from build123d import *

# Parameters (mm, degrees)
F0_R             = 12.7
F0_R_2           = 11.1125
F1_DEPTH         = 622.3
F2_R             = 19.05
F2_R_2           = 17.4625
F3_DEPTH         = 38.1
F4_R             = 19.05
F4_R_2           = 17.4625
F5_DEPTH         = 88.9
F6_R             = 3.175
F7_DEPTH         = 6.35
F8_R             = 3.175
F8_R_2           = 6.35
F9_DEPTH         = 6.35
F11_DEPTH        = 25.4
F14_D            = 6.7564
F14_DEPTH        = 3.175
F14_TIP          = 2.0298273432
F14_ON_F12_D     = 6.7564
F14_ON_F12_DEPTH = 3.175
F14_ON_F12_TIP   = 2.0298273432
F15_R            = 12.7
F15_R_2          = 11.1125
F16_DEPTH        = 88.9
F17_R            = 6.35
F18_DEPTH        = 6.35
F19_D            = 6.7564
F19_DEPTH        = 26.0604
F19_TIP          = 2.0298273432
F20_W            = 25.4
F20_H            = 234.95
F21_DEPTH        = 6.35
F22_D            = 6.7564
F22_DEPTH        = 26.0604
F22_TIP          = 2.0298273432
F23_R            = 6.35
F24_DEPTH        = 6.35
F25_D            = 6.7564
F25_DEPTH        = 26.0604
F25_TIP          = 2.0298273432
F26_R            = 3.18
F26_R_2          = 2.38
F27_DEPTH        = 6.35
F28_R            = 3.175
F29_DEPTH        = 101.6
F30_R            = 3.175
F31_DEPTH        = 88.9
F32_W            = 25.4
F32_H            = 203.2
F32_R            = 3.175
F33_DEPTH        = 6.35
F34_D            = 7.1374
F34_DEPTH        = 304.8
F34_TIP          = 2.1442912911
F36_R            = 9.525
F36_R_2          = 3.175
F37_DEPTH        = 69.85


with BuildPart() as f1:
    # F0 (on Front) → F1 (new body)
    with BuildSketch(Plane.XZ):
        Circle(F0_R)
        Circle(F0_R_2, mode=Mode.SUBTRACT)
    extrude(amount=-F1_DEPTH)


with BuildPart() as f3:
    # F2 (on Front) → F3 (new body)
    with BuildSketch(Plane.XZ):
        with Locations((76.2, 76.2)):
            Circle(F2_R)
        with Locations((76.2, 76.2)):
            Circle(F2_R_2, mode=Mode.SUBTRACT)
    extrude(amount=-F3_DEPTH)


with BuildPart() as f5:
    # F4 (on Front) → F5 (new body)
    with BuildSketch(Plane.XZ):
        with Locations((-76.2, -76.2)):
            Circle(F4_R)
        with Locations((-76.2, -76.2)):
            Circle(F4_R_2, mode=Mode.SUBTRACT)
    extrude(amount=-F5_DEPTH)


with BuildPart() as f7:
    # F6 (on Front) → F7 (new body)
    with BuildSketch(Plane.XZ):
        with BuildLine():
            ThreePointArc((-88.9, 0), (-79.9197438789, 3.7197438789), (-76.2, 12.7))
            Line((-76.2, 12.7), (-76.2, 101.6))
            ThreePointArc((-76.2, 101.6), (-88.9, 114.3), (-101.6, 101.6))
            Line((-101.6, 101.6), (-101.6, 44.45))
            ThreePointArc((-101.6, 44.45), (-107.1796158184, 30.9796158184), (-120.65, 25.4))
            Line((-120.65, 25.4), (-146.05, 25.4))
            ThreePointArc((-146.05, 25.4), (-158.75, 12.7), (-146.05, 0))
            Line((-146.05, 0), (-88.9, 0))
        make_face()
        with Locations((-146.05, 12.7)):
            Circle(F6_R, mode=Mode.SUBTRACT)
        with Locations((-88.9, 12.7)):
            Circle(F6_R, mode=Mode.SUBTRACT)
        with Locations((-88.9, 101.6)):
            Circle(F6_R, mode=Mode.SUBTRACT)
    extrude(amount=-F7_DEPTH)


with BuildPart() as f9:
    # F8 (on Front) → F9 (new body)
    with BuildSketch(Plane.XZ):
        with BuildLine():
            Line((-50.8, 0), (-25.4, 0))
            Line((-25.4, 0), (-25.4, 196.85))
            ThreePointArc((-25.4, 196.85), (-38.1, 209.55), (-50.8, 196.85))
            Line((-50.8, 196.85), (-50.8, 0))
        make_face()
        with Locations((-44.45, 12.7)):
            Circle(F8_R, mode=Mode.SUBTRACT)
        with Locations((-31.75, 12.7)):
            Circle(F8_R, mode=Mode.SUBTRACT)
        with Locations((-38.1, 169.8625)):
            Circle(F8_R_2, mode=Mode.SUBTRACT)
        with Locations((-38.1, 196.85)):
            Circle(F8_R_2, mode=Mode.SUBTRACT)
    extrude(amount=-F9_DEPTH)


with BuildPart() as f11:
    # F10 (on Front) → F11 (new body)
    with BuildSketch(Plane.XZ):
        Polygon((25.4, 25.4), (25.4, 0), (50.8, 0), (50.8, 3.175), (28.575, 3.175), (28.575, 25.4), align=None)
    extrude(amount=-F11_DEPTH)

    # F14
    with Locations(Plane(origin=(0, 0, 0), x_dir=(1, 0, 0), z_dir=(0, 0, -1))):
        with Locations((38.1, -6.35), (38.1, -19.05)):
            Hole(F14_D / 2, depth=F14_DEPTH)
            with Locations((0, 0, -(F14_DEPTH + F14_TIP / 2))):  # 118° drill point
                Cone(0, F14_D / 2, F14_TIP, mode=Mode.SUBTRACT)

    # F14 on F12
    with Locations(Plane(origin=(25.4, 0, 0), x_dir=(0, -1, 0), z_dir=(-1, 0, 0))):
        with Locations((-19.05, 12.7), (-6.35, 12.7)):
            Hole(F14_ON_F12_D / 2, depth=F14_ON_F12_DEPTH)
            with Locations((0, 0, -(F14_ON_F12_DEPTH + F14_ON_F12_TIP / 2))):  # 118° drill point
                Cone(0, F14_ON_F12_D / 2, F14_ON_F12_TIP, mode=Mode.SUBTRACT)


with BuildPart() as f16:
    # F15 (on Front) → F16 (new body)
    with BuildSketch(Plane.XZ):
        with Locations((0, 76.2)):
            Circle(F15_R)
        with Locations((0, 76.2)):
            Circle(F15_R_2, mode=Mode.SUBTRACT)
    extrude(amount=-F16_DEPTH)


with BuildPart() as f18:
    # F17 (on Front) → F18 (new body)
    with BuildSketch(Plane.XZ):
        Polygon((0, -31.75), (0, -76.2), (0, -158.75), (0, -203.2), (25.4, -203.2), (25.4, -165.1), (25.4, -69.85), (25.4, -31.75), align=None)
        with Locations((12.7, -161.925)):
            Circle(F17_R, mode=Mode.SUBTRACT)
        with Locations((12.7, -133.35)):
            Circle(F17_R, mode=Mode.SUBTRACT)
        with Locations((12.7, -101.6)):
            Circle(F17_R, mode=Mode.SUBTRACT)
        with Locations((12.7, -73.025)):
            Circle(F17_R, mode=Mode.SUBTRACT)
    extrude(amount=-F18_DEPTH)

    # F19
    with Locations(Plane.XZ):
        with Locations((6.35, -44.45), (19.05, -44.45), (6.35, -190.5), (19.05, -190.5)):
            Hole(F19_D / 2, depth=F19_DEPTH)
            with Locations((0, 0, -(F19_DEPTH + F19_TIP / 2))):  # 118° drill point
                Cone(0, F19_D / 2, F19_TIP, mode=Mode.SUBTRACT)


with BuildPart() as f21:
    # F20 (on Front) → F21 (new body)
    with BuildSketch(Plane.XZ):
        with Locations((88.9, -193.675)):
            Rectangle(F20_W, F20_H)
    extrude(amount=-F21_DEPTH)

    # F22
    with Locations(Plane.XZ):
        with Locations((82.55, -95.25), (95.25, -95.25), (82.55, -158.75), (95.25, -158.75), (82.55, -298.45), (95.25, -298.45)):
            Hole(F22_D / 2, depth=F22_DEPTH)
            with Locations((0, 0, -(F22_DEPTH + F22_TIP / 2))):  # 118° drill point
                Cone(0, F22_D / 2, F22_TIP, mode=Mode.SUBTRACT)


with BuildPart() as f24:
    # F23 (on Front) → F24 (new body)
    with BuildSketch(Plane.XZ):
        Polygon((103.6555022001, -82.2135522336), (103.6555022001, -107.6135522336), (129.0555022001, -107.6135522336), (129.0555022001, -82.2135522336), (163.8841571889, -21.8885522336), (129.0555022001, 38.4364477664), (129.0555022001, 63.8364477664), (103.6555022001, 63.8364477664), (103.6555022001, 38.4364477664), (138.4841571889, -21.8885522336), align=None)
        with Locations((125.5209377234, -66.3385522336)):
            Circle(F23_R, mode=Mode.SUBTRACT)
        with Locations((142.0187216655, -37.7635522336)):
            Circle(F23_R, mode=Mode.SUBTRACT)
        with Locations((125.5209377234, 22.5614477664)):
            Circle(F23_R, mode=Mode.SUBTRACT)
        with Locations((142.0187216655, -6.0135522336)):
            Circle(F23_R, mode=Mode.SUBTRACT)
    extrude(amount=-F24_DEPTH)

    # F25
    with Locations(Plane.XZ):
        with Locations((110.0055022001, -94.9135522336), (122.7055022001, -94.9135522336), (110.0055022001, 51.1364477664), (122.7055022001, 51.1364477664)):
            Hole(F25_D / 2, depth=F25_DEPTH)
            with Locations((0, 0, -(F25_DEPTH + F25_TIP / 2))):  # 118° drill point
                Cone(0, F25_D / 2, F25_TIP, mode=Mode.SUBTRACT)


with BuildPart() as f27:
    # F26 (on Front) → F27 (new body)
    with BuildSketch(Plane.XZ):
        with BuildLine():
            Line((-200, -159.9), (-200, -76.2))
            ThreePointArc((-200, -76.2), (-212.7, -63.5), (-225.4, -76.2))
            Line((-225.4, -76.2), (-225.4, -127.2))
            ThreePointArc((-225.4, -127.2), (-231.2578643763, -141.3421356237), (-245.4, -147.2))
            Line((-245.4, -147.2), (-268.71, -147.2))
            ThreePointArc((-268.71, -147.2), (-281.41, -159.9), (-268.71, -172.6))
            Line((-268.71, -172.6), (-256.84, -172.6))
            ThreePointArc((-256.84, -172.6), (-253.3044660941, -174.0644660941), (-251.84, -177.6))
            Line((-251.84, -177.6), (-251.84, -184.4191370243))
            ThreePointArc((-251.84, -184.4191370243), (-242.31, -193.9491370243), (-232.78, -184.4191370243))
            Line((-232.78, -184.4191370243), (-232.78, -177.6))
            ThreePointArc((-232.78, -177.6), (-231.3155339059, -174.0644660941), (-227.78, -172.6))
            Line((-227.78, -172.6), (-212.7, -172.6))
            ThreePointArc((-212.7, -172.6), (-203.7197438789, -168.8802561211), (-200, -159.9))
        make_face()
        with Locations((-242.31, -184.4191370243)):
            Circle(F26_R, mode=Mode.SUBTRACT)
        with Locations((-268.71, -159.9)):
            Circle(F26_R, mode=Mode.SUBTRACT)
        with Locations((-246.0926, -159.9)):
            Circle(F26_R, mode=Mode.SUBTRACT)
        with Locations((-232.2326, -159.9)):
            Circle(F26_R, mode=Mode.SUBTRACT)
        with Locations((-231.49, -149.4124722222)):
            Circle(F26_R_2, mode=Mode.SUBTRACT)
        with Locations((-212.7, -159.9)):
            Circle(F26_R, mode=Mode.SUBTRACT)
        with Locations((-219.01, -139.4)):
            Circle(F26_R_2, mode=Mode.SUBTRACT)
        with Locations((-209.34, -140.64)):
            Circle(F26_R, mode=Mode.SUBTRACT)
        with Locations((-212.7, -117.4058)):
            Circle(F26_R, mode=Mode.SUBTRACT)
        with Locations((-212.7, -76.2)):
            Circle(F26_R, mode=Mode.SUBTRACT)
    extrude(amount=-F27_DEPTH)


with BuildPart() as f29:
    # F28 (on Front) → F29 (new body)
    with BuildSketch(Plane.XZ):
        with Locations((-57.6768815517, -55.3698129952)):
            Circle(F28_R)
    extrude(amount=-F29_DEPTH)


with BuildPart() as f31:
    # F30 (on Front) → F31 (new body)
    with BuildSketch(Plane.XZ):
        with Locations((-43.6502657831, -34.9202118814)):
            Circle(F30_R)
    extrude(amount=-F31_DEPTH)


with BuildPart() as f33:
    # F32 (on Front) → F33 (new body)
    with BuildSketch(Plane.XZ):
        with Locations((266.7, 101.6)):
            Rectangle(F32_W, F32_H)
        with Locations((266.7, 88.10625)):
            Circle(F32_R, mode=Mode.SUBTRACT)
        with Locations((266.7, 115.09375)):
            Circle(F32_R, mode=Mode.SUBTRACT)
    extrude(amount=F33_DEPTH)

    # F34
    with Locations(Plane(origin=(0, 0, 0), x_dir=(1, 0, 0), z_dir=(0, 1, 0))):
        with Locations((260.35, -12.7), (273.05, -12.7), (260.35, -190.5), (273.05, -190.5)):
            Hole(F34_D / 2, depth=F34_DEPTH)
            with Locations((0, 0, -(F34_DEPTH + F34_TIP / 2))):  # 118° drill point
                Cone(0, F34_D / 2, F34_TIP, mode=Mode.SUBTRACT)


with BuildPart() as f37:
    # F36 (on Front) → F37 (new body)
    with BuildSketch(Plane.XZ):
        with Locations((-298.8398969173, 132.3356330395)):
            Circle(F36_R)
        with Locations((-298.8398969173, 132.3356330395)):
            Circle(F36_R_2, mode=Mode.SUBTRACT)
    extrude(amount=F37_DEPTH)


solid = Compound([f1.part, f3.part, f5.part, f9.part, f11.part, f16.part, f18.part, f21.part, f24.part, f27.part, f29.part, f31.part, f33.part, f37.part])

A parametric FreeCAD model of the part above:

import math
import FreeCAD as App
import Part
import Sketcher
Q = App.Units.Quantity


def add_polygon(sketch, points):
    """Adds a closed chain of lines whose ends are joined by coincident constraints."""
    first, n = sketch.GeometryCount, len(points)
    for a, b in zip(points, points[1:] + points[:1]):
        sketch.addGeometry(Part.LineSegment(App.Vector(*a, 0), App.Vector(*b, 0)), False)
    for i in range(n):
        sketch.addConstraint(Sketcher.Constraint("Coincident", first + i, 2, first + (i + 1) % n, 1))

doc = App.newDocument("Part")
body = doc.addObject("PartDesign::Body", "Body")

sketch1 = body.newObject("Sketcher::SketchObject", "Sketch")
sketch1.AttachmentSupport = (doc.getObject("XZ_Plane"), [""])
sketch1.MapMode = "FlatFace"
sketch1.addGeometry([
    Part.Circle(App.Vector(0, 0, 0), App.Vector(0, 0, 1), 12.7),
    Part.Circle(App.Vector(0, 0, 0), App.Vector(0, 0, 1), 11.1125),
], False)
sketch1.addConstraint([
    Sketcher.Constraint("Coincident", 0, 3, -1, 1),
    Sketcher.Constraint("Coincident", 1, 3, -1, 1),
    Sketcher.Constraint("Diameter", 0, Q("1 in")),
    Sketcher.Constraint("Diameter", 1, Q("0.875 in")),
])
pad1 = body.newObject("PartDesign::Pad", "Pad")
pad1.Profile = sketch1
pad1.Length = Q("24.5 in")
pad1.Reversed = True
body2 = doc.addObject("PartDesign::Body", "Body001")

sketch2 = body2.newObject("Sketcher::SketchObject", "Sketch001")
sketch2.AttachmentSupport = (doc.getObject("XZ_Plane001"), [""])
sketch2.MapMode = "FlatFace"
sketch2.addGeometry([
    Part.Circle(App.Vector(76.2, 76.2, 0), App.Vector(0, 0, 1), 19.05),
    Part.Circle(App.Vector(76.2, 76.2, 0), App.Vector(0, 0, 1), 17.4625),
], False)
sketch2.addConstraint([
    Sketcher.Constraint("Coincident", 1, 3, 0, 3),
    Sketcher.Constraint("Diameter", 0, Q("1.5 in")),
    Sketcher.Constraint("Diameter", 1, Q("1.375 in")),
    Sketcher.Constraint("DistanceX", -1, 1, 0, 3, Q("3 in")),
    Sketcher.Constraint("DistanceY", -1, 1, 0, 3, Q("3 in")),
])
pad2 = body2.newObject("PartDesign::Pad", "Pad001")
pad2.Profile = sketch2
pad2.Length = Q("1.5 in")
pad2.Reversed = True
body3 = doc.addObject("PartDesign::Body", "Body002")

sketch3 = body3.newObject("Sketcher::SketchObject", "Sketch002")
sketch3.AttachmentSupport = (doc.getObject("XZ_Plane002"), [""])
sketch3.MapMode = "FlatFace"
sketch3.addGeometry([
    Part.Circle(App.Vector(-76.2, -76.2, 0), App.Vector(0, 0, 1), 19.05),
    Part.Circle(App.Vector(-76.2, -76.2, 0), App.Vector(0, 0, 1), 17.4625),
], False)
sketch3.addConstraint([
    Sketcher.Constraint("Coincident", 1, 3, 0, 3),
    Sketcher.Constraint("Diameter", 0, Q("1.5 in")),
    Sketcher.Constraint("Diameter", 1, Q("1.375 in")),
    Sketcher.Constraint("DistanceX", 0, 3, -1, 1, Q("3 in")),
    Sketcher.Constraint("DistanceY", 0, 3, -1, 1, Q("3 in")),
])
pad3 = body3.newObject("PartDesign::Pad", "Pad002")
pad3.Profile = sketch3
pad3.Length = Q("3.5 in")
pad3.Reversed = True
body4 = doc.addObject("PartDesign::Body", "Body003")

sketch4 = body4.newObject("Sketcher::SketchObject", "Sketch003")
sketch4.AttachmentSupport = (doc.getObject("XZ_Plane003"), [""])
sketch4.MapMode = "FlatFace"
sketch4.addGeometry([
    Part.ArcOfCircle(Part.Circle(App.Vector(-88.9, 12.7, 0), App.Vector(0, 0, 1), 12.7), math.radians(-90), math.radians(0)),
    Part.LineSegment(App.Vector(-76.2, 12.7, 0), App.Vector(-76.2, 101.6, 0)),
    Part.ArcOfCircle(Part.Circle(App.Vector(-88.9, 101.6, 0), App.Vector(0, 0, 1), 12.7), math.radians(0), math.radians(180)),
    Part.LineSegment(App.Vector(-101.6, 101.6, 0), App.Vector(-101.6, 44.45, 0)),
    Part.ArcOfCircle(Part.Circle(App.Vector(-120.65, 44.45, 0), App.Vector(0, 0, 1), 19.05), math.radians(-90), math.radians(0)),
    Part.LineSegment(App.Vector(-120.65, 25.4, 0), App.Vector(-146.05, 25.4, 0)),
    Part.ArcOfCircle(Part.Circle(App.Vector(-146.05, 12.7, 0), App.Vector(0, 0, 1), 12.7), math.radians(90), math.radians(270)),
    Part.LineSegment(App.Vector(-146.05, 0, 0), App.Vector(-88.9, 0, 0)),
    Part.Circle(App.Vector(-146.05, 12.7, 0), App.Vector(0, 0, 1), 3.175),
    Part.Circle(App.Vector(-88.9, 12.7, 0), App.Vector(0, 0, 1), 3.175),
    Part.Circle(App.Vector(-88.9, 101.6, 0), App.Vector(0, 0, 1), 3.175),
], False)
sketch4.addConstraint([
    Sketcher.Constraint("Tangent", 0, 2, 1, 1),
    Sketcher.Constraint("Tangent", 1, 2, 2, 1),
    Sketcher.Constraint("Tangent", 2, 2, 3, 1),
    Sketcher.Constraint("Tangent", 3, 2, 4, 2),
    Sketcher.Constraint("Tangent", 4, 1, 5, 1),
    Sketcher.Constraint("Tangent", 5, 2, 6, 1),
    Sketcher.Constraint("Tangent", 6, 2, 7, 1),
    Sketcher.Constraint("Tangent", 7, 2, 0, 1),
    Sketcher.Constraint("Vertical", 1),
    Sketcher.Constraint("Vertical", 3),
    Sketcher.Constraint("Horizontal", 5),
    Sketcher.Constraint("Horizontal", 7),
    Sketcher.Constraint("Coincident", 8, 3, 6, 3),
    Sketcher.Constraint("Coincident", 9, 3, 0, 3),
    Sketcher.Constraint("Coincident", 10, 3, 2, 3),
    Sketcher.Constraint("Equal", 0, 2),
    Sketcher.Constraint("Equal", 2, 6),
    Sketcher.Constraint("Equal", 8, 9),
    Sketcher.Constraint("Equal", 9, 10),
    Sketcher.Constraint("PointOnObject", 6, 2, -1),
    Sketcher.Constraint("Equal", 7, 3),
    Sketcher.Constraint("Radius", 0, Q("0.5 in")),
    Sketcher.Constraint("Diameter", 8, Q("0.25 in")),
    Sketcher.Constraint("DistanceX", 5, 2, 5, 1, Q("1 in")),
    Sketcher.Constraint("Radius", 4, Q("0.75 in")),
    Sketcher.Constraint("DistanceX", 0, 2, -1, 1, Q("3 in")),
])
pad4 = body4.newObject("PartDesign::Pad", "Pad003")
pad4.Profile = sketch4
pad4.Length = Q("0.25 in")
pad4.Reversed = True
body5 = doc.addObject("PartDesign::Body", "Body004")

sketch5 = body5.newObject("Sketcher::SketchObject", "Sketch004")
sketch5.AttachmentSupport = (doc.getObject("XZ_Plane004"), [""])
sketch5.MapMode = "FlatFace"
sketch5.addGeometry([
    Part.LineSegment(App.Vector(-50.8, 0, 0), App.Vector(-25.4, 0, 0)),
    Part.LineSegment(App.Vector(-25.4, 0, 0), App.Vector(-25.4, 196.85, 0)),
    Part.ArcOfCircle(Part.Circle(App.Vector(-38.1, 196.85, 0), App.Vector(0, 0, 1), 12.7), math.radians(0), math.radians(180)),
    Part.LineSegment(App.Vector(-50.8, 196.85, 0), App.Vector(-50.8, 0, 0)),
    Part.Circle(App.Vector(-44.45, 12.7, 0), App.Vector(0, 0, 1), 3.175),
    Part.Circle(App.Vector(-31.75, 12.7, 0), App.Vector(0, 0, 1), 3.175),
    Part.Circle(App.Vector(-38.1, 169.8625, 0), App.Vector(0, 0, 1), 6.35),
    Part.Circle(App.Vector(-38.1, 196.85, 0), App.Vector(0, 0, 1), 6.35),
], False)
sketch5.addConstraint([
    Sketcher.Constraint("Coincident", 0, 2, 1, 1),
    Sketcher.Constraint("Tangent", 1, 2, 2, 1),
    Sketcher.Constraint("Tangent", 2, 2, 3, 1),
    Sketcher.Constraint("Coincident", 3, 2, 0, 1),
    Sketcher.Constraint("Horizontal", 0),
    Sketcher.Constraint("Vertical", 1),
    Sketcher.Constraint("Vertical", 3),
    Sketcher.Constraint("Coincident", 7, 3, 2, 3),
    Sketcher.Constraint("Equal", 4, 5),
    Sketcher.Constraint("Equal", 6, 7),
    Sketcher.Constraint("PointOnObject", 0, 2, -1),
    Sketcher.Constraint("Horizontal", 4, 3, 5, 3),
    Sketcher.Constraint("Vertical", 2, 3, 6, 3),
    Sketcher.Constraint("Diameter", 6, Q("0.5 in")),
    Sketcher.Constraint("Radius", 2, Q("0.5 in")),
    Sketcher.Constraint("Diameter", 4, Q("0.25 in")),
    Sketcher.Constraint("DistanceX", 0, 2, -1, 1, Q("1 in")),
    Sketcher.Constraint("DistanceY", 1, 1, 1, 2, Q("7.75 in")),
    Sketcher.Constraint("DistanceY", -1, 1, 4, 3, Q("0.5 in")),
    Sketcher.Constraint("DistanceX", 4, 3, 5, 3, Q("0.5 in")),
    Sketcher.Constraint("DistanceX", 4, 3, -1, 1, Q("1.75 in")),
    Sketcher.Constraint("DistanceY", -1, 1, 6, 3, Q("6.6875 in")),
])
pad5 = body5.newObject("PartDesign::Pad", "Pad004")
pad5.Profile = sketch5
pad5.Length = Q("0.25 in")
pad5.Reversed = True
body6 = doc.addObject("PartDesign::Body", "Body005")

sketch6 = body6.newObject("Sketcher::SketchObject", "Sketch005")
sketch6.AttachmentSupport = (doc.getObject("XZ_Plane005"), [""])
sketch6.MapMode = "FlatFace"
add_polygon(sketch6, [(25.4, 25.4), (25.4, 0), (50.8, 0), (50.8, 3.175), (28.575, 3.175), (28.575, 25.4)])
sketch6.addConstraint([
    Sketcher.Constraint("Vertical", 0),
    Sketcher.Constraint("Horizontal", 1),
    Sketcher.Constraint("Vertical", 2),
    Sketcher.Constraint("Horizontal", 3),
    Sketcher.Constraint("Vertical", 4),
    Sketcher.Constraint("Horizontal", 5),
    Sketcher.Constraint("PointOnObject", 0, 2, -1),
    Sketcher.Constraint("Equal", 1, 0),
    Sketcher.Constraint("Equal", 5, 2),
    Sketcher.Constraint("DistanceX", 1, 1, 1, 2, Q("1 in")),
    Sketcher.Constraint("DistanceX", -1, 1, 0, 2, Q("1 in")),
    Sketcher.Constraint("DistanceX", 3, 2, 3, 1, Q("0.875 in")),
])
pad6 = body6.newObject("PartDesign::Pad", "Pad005")
pad6.Profile = sketch6
pad6.Length = Q("1 in")
pad6.Reversed = True

sketch7 = body6.newObject("Sketcher::SketchObject", "Sketch006")
sketch7.AttachmentSupport = (doc.getObject("XY_Plane005"), [""])
sketch7.MapMode = "FlatFace"
sketch7.addGeometry([
    Part.Circle(App.Vector(38.1, 6.35, 0), App.Vector(0, 0, 1), 3.3782),
    Part.Circle(App.Vector(38.1, 19.05, 0), App.Vector(0, 0, 1), 3.3782),
], False)
sketch7.addConstraint([
    Sketcher.Constraint("Equal", 0, 1),
    Sketcher.Constraint("Vertical", 0, 3, 1, 3),
    Sketcher.Constraint("Diameter", 0, Q("0.266 in")),
    Sketcher.Constraint("DistanceX", -1, 1, 0, 3, Q("1.5 in")),
    Sketcher.Constraint("DistanceY", 0, 3, 1, 3, Q("0.5 in")),
    Sketcher.Constraint("DistanceY", -1, 1, 0, 3, Q("0.25 in")),
])
doc.recompute()
hole = body6.newObject("PartDesign::Hole", "Hole")
hole.Profile = sketch7
hole.ThreadType = "None"
hole.Diameter = Q("0.266 in")
hole.DepthType = "Dimension"
hole.Depth = Q("0.125 in")
hole.DrillPoint = "Angled"
hole.DrillPointAngle = 118
hole.Reversed = True

sketch8 = body6.newObject("Sketcher::SketchObject", "Sketch007")
sketch8.AttachmentSupport = (doc.getObject("YZ_Plane005"), [""])
sketch8.MapMode = "FlatFace"
sketch8.AttachmentOffset = App.Placement(App.Vector(0, 0, 1 * 25.4), App.Rotation())
sketch8.addGeometry([
    Part.Circle(App.Vector(19.05, 12.7, 0), App.Vector(0, 0, 1), 3.3782),
    Part.Circle(App.Vector(6.35, 12.7, 0), App.Vector(0, 0, 1), 3.3782),
], False)
sketch8.addConstraint([
    Sketcher.Constraint("Equal", 0, 1),
    Sketcher.Constraint("Horizontal", 0, 3, 1, 3),
    Sketcher.Constraint("Diameter", 0, Q("0.266 in")),
    Sketcher.Constraint("DistanceY", -1, 1, 0, 3, Q("0.5 in")),
    Sketcher.Constraint("DistanceX", 1, 3, 0, 3, Q("0.5 in")),
    Sketcher.Constraint("DistanceX", -1, 1, 0, 3, Q("0.75 in")),
])
doc.recompute()
hole2 = body6.newObject("PartDesign::Hole", "Hole001")
hole2.Profile = sketch8
hole2.ThreadType = "None"
hole2.Diameter = Q("0.266 in")
hole2.DepthType = "Dimension"
hole2.Depth = Q("0.125 in")
hole2.DrillPoint = "Angled"
hole2.DrillPointAngle = 118
hole2.Reversed = True
body7 = doc.addObject("PartDesign::Body", "Body006")

sketch9 = body7.newObject("Sketcher::SketchObject", "Sketch008")
sketch9.AttachmentSupport = (doc.getObject("XZ_Plane006"), [""])
sketch9.MapMode = "FlatFace"
sketch9.addGeometry([
    Part.Circle(App.Vector(0, 76.2, 0), App.Vector(0, 0, 1), 12.7),
    Part.Circle(App.Vector(0, 76.2, 0), App.Vector(0, 0, 1), 11.1125),
], False)
sketch9.addConstraint([
    Sketcher.Constraint("Coincident", 1, 3, 0, 3),
    Sketcher.Constraint("PointOnObject", 0, 3, -2),
    Sketcher.Constraint("Diameter", 0, Q("1 in")),
    Sketcher.Constraint("Diameter", 1, Q("0.875 in")),
    Sketcher.Constraint("DistanceY", -1, 1, 0, 3, Q("3 in")),
])
pad7 = body7.newObject("PartDesign::Pad", "Pad006")
pad7.Profile = sketch9
pad7.Length = Q("3.5 in")
pad7.Reversed = True
body8 = doc.addObject("PartDesign::Body", "Body007")

sketch10 = body8.newObject("Sketcher::SketchObject", "Sketch009")
sketch10.AttachmentSupport = (doc.getObject("XZ_Plane007"), [""])
sketch10.MapMode = "FlatFace"
add_polygon(sketch10, [(0, -31.75), (0, -203.2), (25.4, -203.2), (25.4, -31.75)])
sketch10.addGeometry(Part.Circle(App.Vector(12.7, -161.925, 0), App.Vector(0, 0, 1), 6.35), False)
sketch10.addGeometry(Part.Circle(App.Vector(12.7, -133.35, 0), App.Vector(0, 0, 1), 6.35), False)
sketch10.addGeometry(Part.Circle(App.Vector(12.7, -101.6, 0), App.Vector(0, 0, 1), 6.35), False)
sketch10.addGeometry(Part.Circle(App.Vector(12.7, -73.025, 0), App.Vector(0, 0, 1), 6.35), False)
sketch10.addConstraint([
    Sketcher.Constraint("Vertical", 0),
    Sketcher.Constraint("Horizontal", 1),
    Sketcher.Constraint("Vertical", 2),
    Sketcher.Constraint("Horizontal", 3),
    Sketcher.Constraint("Equal", 4, 5),
    Sketcher.Constraint("Equal", 5, 6),
    Sketcher.Constraint("Equal", 6, 7),
    Sketcher.Constraint("PointOnObject", 0, 2, -2),
    Sketcher.Constraint("Vertical", 4, 3, 5, 3),
    Sketcher.Constraint("Vertical", 5, 3, 6, 3),
    Sketcher.Constraint("Vertical", 6, 3, 7, 3),
    Sketcher.Constraint("Diameter", 4, Q("0.5 in")),
    Sketcher.Constraint("DistanceX", 1, 1, 1, 2, Q("1 in")),
    Sketcher.Constraint("DistanceY", 6, 3, -1, 1, Q("4 in")),
    Sketcher.Constraint("DistanceY", 0, 2, -1, 1, Q("8 in")),
    Sketcher.Constraint("DistanceY", 5, 3, 2, 2, Q("4 in")),
    Sketcher.Constraint("DistanceY", 0, 2, 0, 1, Q("6.75 in")),
    Sketcher.Constraint("DistanceX", -1, 1, 4, 3, Q("0.5 in")),
    Sketcher.Constraint("DistanceY", 4, 3, 7, 3, Q("3.5 in")),
    Sketcher.Constraint("DistanceY", 4, 3, -1, 1, Q("6.375 in")),
])
pad8 = body8.newObject("PartDesign::Pad", "Pad007")
pad8.Profile = sketch10
pad8.Length = Q("0.25 in")
pad8.Reversed = True

sketch11 = body8.newObject("Sketcher::SketchObject", "Sketch010")
sketch11.AttachmentSupport = (doc.getObject("XZ_Plane007"), [""])
sketch11.MapMode = "FlatFace"
sketch11.addGeometry([
    Part.Circle(App.Vector(6.35, -44.45, 0), App.Vector(0, 0, 1), 3.3782),
    Part.Circle(App.Vector(19.05, -44.45, 0), App.Vector(0, 0, 1), 3.3782),
    Part.Circle(App.Vector(6.35, -190.5, 0), App.Vector(0, 0, 1), 3.3782),
    Part.Circle(App.Vector(19.05, -190.5, 0), App.Vector(0, 0, 1), 3.3782),
], False)
sketch11.addConstraint([
    Sketcher.Constraint("Equal", 0, 1),
    Sketcher.Constraint("Equal", 1, 2),
    Sketcher.Constraint("Equal", 2, 3),
    Sketcher.Constraint("Horizontal", 0, 3, 1, 3),
    Sketcher.Constraint("Horizontal", 2, 3, 3, 3),
    Sketcher.Constraint("Vertical", 0, 3, 2, 3),
    Sketcher.Constraint("Vertical", 1, 3, 3, 3),
    Sketcher.Constraint("Diameter", 0, Q("0.266 in")),
    Sketcher.Constraint("DistanceY", 2, 3, -1, 1, Q("7.5 in")),
    Sketcher.Constraint("DistanceX", 0, 3, 1, 3, Q("0.5 in")),
    Sketcher.Constraint("DistanceX", -1, 1, 0, 3, Q("0.25 in")),
    Sketcher.Constraint("DistanceY", 0, 3, -1, 1, Q("1.75 in")),
])
doc.recompute()
hole3 = body8.newObject("PartDesign::Hole", "Hole002")
hole3.Profile = sketch11
hole3.ThreadType = "None"
hole3.Diameter = Q("0.266 in")
hole3.DepthType = "Dimension"
hole3.Depth = Q("1.026 in")
hole3.DrillPoint = "Angled"
hole3.DrillPointAngle = 118
body9 = doc.addObject("PartDesign::Body", "Body008")

sketch12 = body9.newObject("Sketcher::SketchObject", "Sketch011")
sketch12.AttachmentSupport = (doc.getObject("XZ_Plane008"), [""])
sketch12.MapMode = "FlatFace"
add_polygon(sketch12, [(76.2, -76.2), (76.2, -311.15), (101.6, -311.15), (101.6, -76.2)])
sketch12.addConstraint([
    Sketcher.Constraint("Vertical", 0),
    Sketcher.Constraint("Horizontal", 1),
    Sketcher.Constraint("Vertical", 2),
    Sketcher.Constraint("Horizontal", 3),
    Sketcher.Constraint("DistanceX", 1, 1, 1, 2, Q("1 in")),
    Sketcher.Constraint("DistanceX", -1, 1, 0, 2, Q("3 in")),
    Sketcher.Constraint("DistanceY", 2, 2, -1, 1, Q("3 in")),
    Sketcher.Constraint("DistanceY", 0, 2, 0, 1, Q("9.25 in")),
])
pad9 = body9.newObject("PartDesign::Pad", "Pad008")
pad9.Profile = sketch12
pad9.Length = Q("0.25 in")
pad9.Reversed = True

sketch13 = body9.newObject("Sketcher::SketchObject", "Sketch012")
sketch13.AttachmentSupport = (doc.getObject("XZ_Plane008"), [""])
sketch13.MapMode = "FlatFace"
sketch13.addGeometry([
    Part.Circle(App.Vector(82.55, -95.25, 0), App.Vector(0, 0, 1), 3.3782),
    Part.Circle(App.Vector(95.25, -95.25, 0), App.Vector(0, 0, 1), 3.3782),
    Part.Circle(App.Vector(82.55, -158.75, 0), App.Vector(0, 0, 1), 3.3782),
    Part.Circle(App.Vector(95.25, -158.75, 0), App.Vector(0, 0, 1), 3.3782),
    Part.Circle(App.Vector(82.55, -298.45, 0), App.Vector(0, 0, 1), 3.3782),
    Part.Circle(App.Vector(95.25, -298.45, 0), App.Vector(0, 0, 1), 3.3782),
], False)
sketch13.addConstraint([
    Sketcher.Constraint("Equal", 0, 1),
    Sketcher.Constraint("Equal", 1, 2),
    Sketcher.Constraint("Equal", 2, 3),
    Sketcher.Constraint("Equal", 3, 4),
    Sketcher.Constraint("Equal", 4, 5),
    Sketcher.Constraint("Horizontal", 0, 3, 1, 3),
    Sketcher.Constraint("Horizontal", 2, 3, 3, 3),
    Sketcher.Constraint("Horizontal", 4, 3, 5, 3),
    Sketcher.Constraint("Vertical", 0, 3, 2, 3),
    Sketcher.Constraint("Vertical", 1, 3, 3, 3),
    Sketcher.Constraint("Vertical", 2, 3, 4, 3),
    Sketcher.Constraint("Vertical", 3, 3, 5, 3),
    Sketcher.Constraint("Diameter", 0, Q("0.266 in")),
    Sketcher.Constraint("DistanceY", 4, 3, 0, 3, Q("8 in")),
    Sketcher.Constraint("DistanceX", 0, 3, 1, 3, Q("0.5 in")),
    Sketcher.Constraint("DistanceY", 2, 3, 0, 3, Q("2.5 in")),
    Sketcher.Constraint("DistanceX", -1, 1, 0, 3, Q("3.25 in")),
    Sketcher.Constraint("DistanceY", 0, 3, -1, 1, Q("3.75 in")),
])
doc.recompute()
hole4 = body9.newObject("PartDesign::Hole", "Hole003")
hole4.Profile = sketch13
hole4.ThreadType = "None"
hole4.Diameter = Q("0.266 in")
hole4.DepthType = "Dimension"
hole4.Depth = Q("1.026 in")
hole4.DrillPoint = "Angled"
hole4.DrillPointAngle = 118
body10 = doc.addObject("PartDesign::Body", "Body009")

sketch14 = body10.newObject("Sketcher::SketchObject", "Sketch013")
sketch14.AttachmentSupport = (doc.getObject("XZ_Plane009"), [""])
sketch14.MapMode = "FlatFace"
add_polygon(sketch14, [(103.655502, -82.213552), (103.655502, -107.613552), (129.055502, -107.613552), (129.055502, -82.213552), (163.884157, -21.888552), (129.055502, 38.436448), (129.055502, 63.836448), (103.655502, 63.836448), (103.655502, 38.436448), (138.484157, -21.888552)])
sketch14.addGeometry(Part.Circle(App.Vector(125.520938, -66.338552, 0), App.Vector(0, 0, 1), 6.35), False)
sketch14.addGeometry(Part.Circle(App.Vector(142.018722, -37.763552, 0), App.Vector(0, 0, 1), 6.35), False)
sketch14.addGeometry(Part.Circle(App.Vector(125.520938, 22.561448, 0), App.Vector(0, 0, 1), 6.35), False)
sketch14.addGeometry(Part.Circle(App.Vector(142.018722, -6.013552, 0), App.Vector(0, 0, 1), 6.35), False)
sketch14.addConstraint([
    Sketcher.Constraint("Vertical", 0),
    Sketcher.Constraint("Horizontal", 1),
    Sketcher.Constraint("Vertical", 2),
    Sketcher.Constraint("Vertical", 5),
    Sketcher.Constraint("Horizontal", 6),
    Sketcher.Constraint("Vertical", 7),
    Sketcher.Constraint("Equal", 10, 11),
    Sketcher.Constraint("Equal", 11, 12),
    Sketcher.Constraint("Equal", 12, 13),
    Sketcher.Constraint("Parallel", 4, 8),
    Sketcher.Constraint("Parallel", 3, 9),
    Sketcher.Constraint("Horizontal", 4, 2, 7, 2),
    Sketcher.Constraint("Horizontal", 3, 2, 8, 2),
    Sketcher.Constraint("Horizontal", 2, 2, 9, 2),
    Sketcher.Constraint("Vertical", 10, 3, 12, 3),
    Sketcher.Constraint("Vertical", 11, 3, 13, 3),
    Sketcher.Constraint("Vertical", 2, 2, 4, 2),
    Sketcher.Constraint("Equal", 6, 0),
    Sketcher.Constraint("Equal", 2, 5),
    Sketcher.Constraint("Equal", 3, 4),
    Sketcher.Constraint("Diameter", 10, Q("0.5 in")),
    Sketcher.Constraint("DistanceX", 1, 1, 1, 2, Q("1 in")),
    Sketcher.Constraint("Angle", 3, Q("60 deg")),
    Sketcher.Constraint("DistanceY", 0, 2, 13, 3, Q("4 in")),
    Sketcher.Constraint("DistanceY", 11, 3, 4, 2, Q("3 in")),
    Sketcher.Constraint("DistanceY", 10, 3, 12, 3, Q("3.5 in")),
    Sketcher.Constraint("DistanceY", 11, 3, 13, 3, Q("1.25 in")),
    Sketcher.Constraint("DistanceY", 10, 3, 3, 2, Q("1.75 in")),
    Sketcher.Constraint("DistanceX", -1, 1, 11, 3, 142.018722),
    Sketcher.Constraint("DistanceX", 0, 2, 11, 3, 38.363219),
    Sketcher.Constraint("DistanceX", 10, 3, 3, 2, 38.363219),
    Sketcher.Constraint("DistanceY", 10, 3, -1, 1, 66.338552),
])
pad10 = body10.newObject("PartDesign::Pad", "Pad009")
pad10.Profile = sketch14
pad10.Length = Q("0.25 in")
pad10.Reversed = True

sketch15 = body10.newObject("Sketcher::SketchObject", "Sketch014")
sketch15.AttachmentSupport = (doc.getObject("XZ_Plane009"), [""])
sketch15.MapMode = "FlatFace"
sketch15.addGeometry([
    Part.Circle(App.Vector(110.005502, -94.913552, 0), App.Vector(0, 0, 1), 3.3782),
    Part.Circle(App.Vector(122.705502, -94.913552, 0), App.Vector(0, 0, 1), 3.3782),
    Part.Circle(App.Vector(110.005502, 51.136448, 0), App.Vector(0, 0, 1), 3.3782),
    Part.Circle(App.Vector(122.705502, 51.136448, 0), App.Vector(0, 0, 1), 3.3782),
], False)
sketch15.addConstraint([
    Sketcher.Constraint("Equal", 0, 1),
    Sketcher.Constraint("Equal", 1, 2),
    Sketcher.Constraint("Equal", 2, 3),
    Sketcher.Constraint("Horizontal", 0, 3, 1, 3),
    Sketcher.Constraint("Horizontal", 2, 3, 3, 3),
    Sketcher.Constraint("Vertical", 0, 3, 2, 3),
    Sketcher.Constraint("Vertical", 1, 3, 3, 3),
    Sketcher.Constraint("Diameter", 0, Q("0.266 in")),
    Sketcher.Constraint("DistanceX", 0, 3, 1, 3, Q("0.5 in")),
    Sketcher.Constraint("DistanceY", 0, 3, 2, 3, Q("5.75 in")),
    Sketcher.Constraint("DistanceX", -1, 1, 0, 3, 110.005502),
    Sketcher.Constraint("DistanceY", 0, 3, -1, 1, 94.913552),
])
doc.recompute()
hole5 = body10.newObject("PartDesign::Hole", "Hole004")
hole5.Profile = sketch15
hole5.ThreadType = "None"
hole5.Diameter = Q("0.266 in")
hole5.DepthType = "Dimension"
hole5.Depth = Q("1.026 in")
hole5.DrillPoint = "Angled"
hole5.DrillPointAngle = 118
body11 = doc.addObject("PartDesign::Body", "Body010")

sketch16 = body11.newObject("Sketcher::SketchObject", "Sketch015")
sketch16.AttachmentSupport = (doc.getObject("XZ_Plane010"), [""])
sketch16.MapMode = "FlatFace"
sketch16.addGeometry([
    Part.LineSegment(App.Vector(-200, -159.9, 0), App.Vector(-200, -76.2, 0)),
    Part.ArcOfCircle(Part.Circle(App.Vector(-212.7, -76.2, 0), App.Vector(0, 0, 1), 12.7), math.radians(0), math.radians(180)),
    Part.LineSegment(App.Vector(-225.4, -76.2, 0), App.Vector(-225.4, -127.2, 0)),
    Part.ArcOfCircle(Part.Circle(App.Vector(-245.4, -127.2, 0), App.Vector(0, 0, 1), 20), math.radians(-90), math.radians(0)),
    Part.LineSegment(App.Vector(-245.4, -147.2, 0), App.Vector(-268.71, -147.2, 0)),
    Part.ArcOfCircle(Part.Circle(App.Vector(-268.71, -159.9, 0), App.Vector(0, 0, 1), 12.7), math.radians(90), math.radians(270)),
    Part.LineSegment(App.Vector(-268.71, -172.6, 0), App.Vector(-256.84, -172.6, 0)),
    Part.ArcOfCircle(Part.Circle(App.Vector(-256.84, -177.6, 0), App.Vector(0, 0, 1), 5), math.radians(0), math.radians(90)),
    Part.LineSegment(App.Vector(-251.84, -177.6, 0), App.Vector(-251.84, -184.419137, 0)),
    Part.ArcOfCircle(Part.Circle(App.Vector(-242.31, -184.419137, 0), App.Vector(0, 0, 1), 9.53), math.radians(180), math.radians(360)),
    Part.LineSegment(App.Vector(-232.78, -184.419137, 0), App.Vector(-232.78, -177.6, 0)),
    Part.ArcOfCircle(Part.Circle(App.Vector(-227.78, -177.6, 0), App.Vector(0, 0, 1), 5), math.radians(90), math.radians(180)),
    Part.LineSegment(App.Vector(-227.78, -172.6, 0), App.Vector(-212.7, -172.6, 0)),
    Part.ArcOfCircle(Part.Circle(App.Vector(-212.7, -159.9, 0), App.Vector(0, 0, 1), 12.7), math.radians(-90), math.radians(0)),
    Part.Circle(App.Vector(-268.71, -159.9, 0), App.Vector(0, 0, 1), 3.18),
    Part.Circle(App.Vector(-242.31, -184.419137, 0), App.Vector(0, 0, 1), 3.18),
    Part.Circle(App.Vector(-246.0926, -159.9, 0), App.Vector(0, 0, 1), 3.18),
    Part.Circle(App.Vector(-232.2326, -159.9, 0), App.Vector(0, 0, 1), 3.18),
    Part.Circle(App.Vector(-212.7, -159.9, 0), App.Vector(0, 0, 1), 3.18),
    Part.Circle(App.Vector(-231.49, -149.412472, 0), App.Vector(0, 0, 1), 2.38),
    Part.Circle(App.Vector(-219.01, -139.4, 0), App.Vector(0, 0, 1), 2.38),
    Part.Circle(App.Vector(-209.34, -140.64, 0), App.Vector(0, 0, 1), 3.18),
    Part.Circle(App.Vector(-212.7, -117.4058, 0), App.Vector(0, 0, 1), 3.18),
    Part.Circle(App.Vector(-212.7, -76.2, 0), App.Vector(0, 0, 1), 3.18),
], False)
sketch16.addConstraint([
    Sketcher.Constraint("Tangent", 0, 2, 1, 1),
    Sketcher.Constraint("Tangent", 1, 2, 2, 1),
    Sketcher.Constraint("Tangent", 2, 2, 3, 2),
    Sketcher.Constraint("Tangent", 3, 1, 4, 1),
    Sketcher.Constraint("Tangent", 4, 2, 5, 1),
    Sketcher.Constraint("Tangent", 5, 2, 6, 1),
    Sketcher.Constraint("Tangent", 6, 2, 7, 2),
    Sketcher.Constraint("Tangent", 7, 1, 8, 1),
    Sketcher.Constraint("Tangent", 8, 2, 9, 1),
    Sketcher.Constraint("Tangent", 9, 2, 10, 1),
    Sketcher.Constraint("Tangent", 10, 2, 11, 2),
    Sketcher.Constraint("Tangent", 11, 1, 12, 1),
    Sketcher.Constraint("Tangent", 12, 2, 13, 1),
    Sketcher.Constraint("Tangent", 13, 2, 0, 1),
    Sketcher.Constraint("Vertical", 0),
    Sketcher.Constraint("Vertical", 2),
    Sketcher.Constraint("Horizontal", 4),
    Sketcher.Constraint("Horizontal", 6),
    Sketcher.Constraint("Vertical", 8),
    Sketcher.Constraint("Vertical", 10),
    Sketcher.Constraint("Horizontal", 12),
    Sketcher.Constraint("Coincident", 14, 3, 5, 3),
    Sketcher.Constraint("Coincident", 15, 3, 9, 3),
    Sketcher.Constraint("Coincident", 18, 3, 13, 3),
    Sketcher.Constraint("Coincident", 23, 3, 1, 3),
    Sketcher.Constraint("Equal", 1, 5),
    Sketcher.Constraint("Equal", 7, 11),
    Sketcher.Constraint("Equal", 5, 13),
    Sketcher.Constraint("Equal", 14, 15),
    Sketcher.Constraint("Equal", 15, 16),
    Sketcher.Constraint("Equal", 16, 17),
    Sketcher.Constraint("Equal", 17, 18),
    Sketcher.Constraint("Equal", 19, 20),
    Sketcher.Constraint("Equal", 18, 21),
    Sketcher.Constraint("Equal", 21, 22),
    Sketcher.Constraint("Equal", 22, 23),
    Sketcher.Constraint("Horizontal", 7, 3, 11, 3),
    Sketcher.Constraint("Horizontal", 14, 3, 16, 3),
    Sketcher.Constraint("Horizontal", 16, 3, 17, 3),
    Sketcher.Constraint("Vertical", 18, 3, 22, 3),
    Sketcher.Constraint("Radius", 1, Q("0.5 in")),
    Sketcher.Constraint("DistanceY", 1, 3, -1, 1, Q("3 in")),
    Sketcher.Constraint("Diameter", 14, 6.36),
    Sketcher.Constraint("Diameter", 19, 4.76),
    Sketcher.Constraint("Radius", 3, 20.0),
    Sketcher.Constraint("Radius", 7, 5.0),
    Sketcher.Constraint("Radius", 9, 9.53),
    Sketcher.Constraint("DistanceX", 17, 3, 13, 3, Q("0.769 in")),
    Sketcher.Constraint("DistanceX", 4, 2, 4, 1, 23.31),
    Sketcher.Constraint("DistanceX", 6, 1, 6, 2, 11.87),
    Sketcher.Constraint("DistanceY", 0, 1, 0, 2, 83.7),
    Sketcher.Constraint("DistanceX", 1, 3, -1, 1, 212.7),
    Sketcher.Constraint("DistanceX", 16, 3, -1, 1, 246.0926),
    Sketcher.Constraint("DistanceX", 19, 3, -1, 1, 231.49),
    Sketcher.Constraint("DistanceX", 20, 3, -1, 1, 219.01),
    Sketcher.Constraint("DistanceY", 20, 3, -1, 1, 139.4),
    Sketcher.Constraint("DistanceX", 21, 3, -1, 1, 209.34),
    Sketcher.Constraint("DistanceY", 21, 3, -1, 1, 140.64),
    Sketcher.Constraint("DistanceY", 22, 3, -1, 1, 117.4058),
    Sketcher.Constraint("DistanceY", 8, 2, 8, 1, 6.819137),
    Sketcher.Constraint("DistanceY", 19, 3, -1, 1, 149.412472),
])
pad11 = body11.newObject("PartDesign::Pad", "Pad010")
pad11.Profile = sketch16
pad11.Length = Q("0.25 in")
pad11.Reversed = True
body12 = doc.addObject("PartDesign::Body", "Body011")

sketch17 = body12.newObject("Sketcher::SketchObject", "Sketch016")
sketch17.AttachmentSupport = (doc.getObject("XZ_Plane011"), [""])
sketch17.MapMode = "FlatFace"
sketch17.addGeometry(Part.Circle(App.Vector(-57.676882, -55.369813, 0), App.Vector(0, 0, 1), 3.175), False)
sketch17.addConstraint([
    Sketcher.Constraint("Diameter", 0, Q("0.25 in")),
    Sketcher.Constraint("DistanceX", 0, 3, -1, 1, 57.676882),
    Sketcher.Constraint("DistanceY", 0, 3, -1, 1, 55.369813),
])
pad12 = body12.newObject("PartDesign::Pad", "Pad011")
pad12.Profile = sketch17
pad12.Length = Q("4 in")
pad12.Reversed = True
body13 = doc.addObject("PartDesign::Body", "Body012")

sketch18 = body13.newObject("Sketcher::SketchObject", "Sketch017")
sketch18.AttachmentSupport = (doc.getObject("XZ_Plane012"), [""])
sketch18.MapMode = "FlatFace"
sketch18.addGeometry(Part.Circle(App.Vector(-43.650266, -34.920212, 0), App.Vector(0, 0, 1), 3.175), False)
sketch18.addConstraint([
    Sketcher.Constraint("Diameter", 0, Q("0.25 in")),
    Sketcher.Constraint("DistanceY", 0, 3, -1, 1, 34.920212),
    Sketcher.Constraint("DistanceX", 0, 3, -1, 1, 43.650266),
])
pad13 = body13.newObject("PartDesign::Pad", "Pad012")
pad13.Profile = sketch18
pad13.Length = Q("3.5 in")
pad13.Reversed = True
body14 = doc.addObject("PartDesign::Body", "Body013")

sketch19 = body14.newObject("Sketcher::SketchObject", "Sketch018")
sketch19.AttachmentSupport = (doc.getObject("XZ_Plane013"), [""])
sketch19.MapMode = "FlatFace"
add_polygon(sketch19, [(254, 203.2), (254, 0), (279.4, 0), (279.4, 203.2)])
sketch19.addGeometry(Part.Circle(App.Vector(266.7, 88.10625, 0), App.Vector(0, 0, 1), 3.175), False)
sketch19.addGeometry(Part.Circle(App.Vector(266.7, 115.09375, 0), App.Vector(0, 0, 1), 3.175), False)
sketch19.addConstraint([
    Sketcher.Constraint("Vertical", 0),
    Sketcher.Constraint("Horizontal", 1),
    Sketcher.Constraint("Vertical", 2),
    Sketcher.Constraint("Horizontal", 3),
    Sketcher.Constraint("Equal", 4, 5),
    Sketcher.Constraint("PointOnObject", 0, 2, -1),
    Sketcher.Constraint("Vertical", 4, 3, 5, 3),
    Sketcher.Constraint("Diameter", 4, Q("0.25 in")),
    Sketcher.Constraint("DistanceX", 1, 1, 1, 2, Q("1 in")),
    Sketcher.Constraint("DistanceY", 0, 2, 0, 1, Q("8 in")),
    Sketcher.Constraint("DistanceX", -1, 1, 0, 2, Q("10 in")),
    Sketcher.Constraint("DistanceX", -1, 1, 4, 3, Q("10.5 in")),
    Sketcher.Constraint("DistanceY", -1, 1, 4, 3, Q("3.46875 in")),
    Sketcher.Constraint("DistanceY", -1, 1, 5, 3, Q("4.53125 in")),
])
pad14 = body14.newObject("PartDesign::Pad", "Pad013")
pad14.Profile = sketch19
pad14.Length = Q("0.25 in")

sketch20 = body14.newObject("Sketcher::SketchObject", "Sketch019")
sketch20.AttachmentSupport = (doc.getObject("XZ_Plane013"), [""])
sketch20.MapMode = "FlatFace"
sketch20.addGeometry([
    Part.Circle(App.Vector(260.35, 12.7, 0), App.Vector(0, 0, 1), 3.5687),
    Part.Circle(App.Vector(273.05, 12.7, 0), App.Vector(0, 0, 1), 3.5687),
    Part.Circle(App.Vector(260.35, 190.5, 0), App.Vector(0, 0, 1), 3.5687),
    Part.Circle(App.Vector(273.05, 190.5, 0), App.Vector(0, 0, 1), 3.5687),
], False)
sketch20.addConstraint([
    Sketcher.Constraint("Equal", 0, 1),
    Sketcher.Constraint("Equal", 1, 2),
    Sketcher.Constraint("Equal", 2, 3),
    Sketcher.Constraint("Horizontal", 0, 3, 1, 3),
    Sketcher.Constraint("Horizontal", 2, 3, 3, 3),
    Sketcher.Constraint("Vertical", 0, 3, 2, 3),
    Sketcher.Constraint("Vertical", 1, 3, 3, 3),
    Sketcher.Constraint("Diameter", 0, Q("0.281 in")),
    Sketcher.Constraint("DistanceY", 0, 3, 2, 3, Q("7 in")),
    Sketcher.Constraint("DistanceY", -1, 1, 0, 3, Q("0.5 in")),
    Sketcher.Constraint("DistanceX", 0, 3, 1, 3, Q("0.5 in")),
    Sketcher.Constraint("DistanceX", -1, 1, 0, 3, Q("10.25 in")),
])
doc.recompute()
hole6 = body14.newObject("PartDesign::Hole", "Hole005")
hole6.Profile = sketch20
hole6.ThreadType = "None"
hole6.Diameter = Q("0.281 in")
hole6.DepthType = "Dimension"
hole6.Depth = Q("12 in")
hole6.DrillPoint = "Angled"
hole6.DrillPointAngle = 118
hole6.Reversed = True
body15 = doc.addObject("PartDesign::Body", "Body014")

sketch21 = body15.newObject("Sketcher::SketchObject", "Sketch020")
sketch21.AttachmentSupport = (doc.getObject("XZ_Plane014"), [""])
sketch21.MapMode = "FlatFace"
sketch21.addGeometry([
    Part.Circle(App.Vector(-298.839897, 132.335633, 0), App.Vector(0, 0, 1), 9.525),
    Part.Circle(App.Vector(-298.839897, 132.335633, 0), App.Vector(0, 0, 1), 3.175),
], False)
sketch21.addConstraint([
    Sketcher.Constraint("Coincident", 1, 3, 0, 3),
    Sketcher.Constraint("Diameter", 0, Q("0.75 in")),
    Sketcher.Constraint("Diameter", 1, Q("0.25 in")),
    Sketcher.Constraint("DistanceX", 0, 3, -1, 1, 298.839897),
    Sketcher.Constraint("DistanceY", -1, 1, 0, 3, 132.335633),
])
pad15 = body15.newObject("PartDesign::Pad", "Pad014")
pad15.Profile = sketch21
pad15.Length = Q("2.75 in")
body4.Visibility = False

doc.recompute()
